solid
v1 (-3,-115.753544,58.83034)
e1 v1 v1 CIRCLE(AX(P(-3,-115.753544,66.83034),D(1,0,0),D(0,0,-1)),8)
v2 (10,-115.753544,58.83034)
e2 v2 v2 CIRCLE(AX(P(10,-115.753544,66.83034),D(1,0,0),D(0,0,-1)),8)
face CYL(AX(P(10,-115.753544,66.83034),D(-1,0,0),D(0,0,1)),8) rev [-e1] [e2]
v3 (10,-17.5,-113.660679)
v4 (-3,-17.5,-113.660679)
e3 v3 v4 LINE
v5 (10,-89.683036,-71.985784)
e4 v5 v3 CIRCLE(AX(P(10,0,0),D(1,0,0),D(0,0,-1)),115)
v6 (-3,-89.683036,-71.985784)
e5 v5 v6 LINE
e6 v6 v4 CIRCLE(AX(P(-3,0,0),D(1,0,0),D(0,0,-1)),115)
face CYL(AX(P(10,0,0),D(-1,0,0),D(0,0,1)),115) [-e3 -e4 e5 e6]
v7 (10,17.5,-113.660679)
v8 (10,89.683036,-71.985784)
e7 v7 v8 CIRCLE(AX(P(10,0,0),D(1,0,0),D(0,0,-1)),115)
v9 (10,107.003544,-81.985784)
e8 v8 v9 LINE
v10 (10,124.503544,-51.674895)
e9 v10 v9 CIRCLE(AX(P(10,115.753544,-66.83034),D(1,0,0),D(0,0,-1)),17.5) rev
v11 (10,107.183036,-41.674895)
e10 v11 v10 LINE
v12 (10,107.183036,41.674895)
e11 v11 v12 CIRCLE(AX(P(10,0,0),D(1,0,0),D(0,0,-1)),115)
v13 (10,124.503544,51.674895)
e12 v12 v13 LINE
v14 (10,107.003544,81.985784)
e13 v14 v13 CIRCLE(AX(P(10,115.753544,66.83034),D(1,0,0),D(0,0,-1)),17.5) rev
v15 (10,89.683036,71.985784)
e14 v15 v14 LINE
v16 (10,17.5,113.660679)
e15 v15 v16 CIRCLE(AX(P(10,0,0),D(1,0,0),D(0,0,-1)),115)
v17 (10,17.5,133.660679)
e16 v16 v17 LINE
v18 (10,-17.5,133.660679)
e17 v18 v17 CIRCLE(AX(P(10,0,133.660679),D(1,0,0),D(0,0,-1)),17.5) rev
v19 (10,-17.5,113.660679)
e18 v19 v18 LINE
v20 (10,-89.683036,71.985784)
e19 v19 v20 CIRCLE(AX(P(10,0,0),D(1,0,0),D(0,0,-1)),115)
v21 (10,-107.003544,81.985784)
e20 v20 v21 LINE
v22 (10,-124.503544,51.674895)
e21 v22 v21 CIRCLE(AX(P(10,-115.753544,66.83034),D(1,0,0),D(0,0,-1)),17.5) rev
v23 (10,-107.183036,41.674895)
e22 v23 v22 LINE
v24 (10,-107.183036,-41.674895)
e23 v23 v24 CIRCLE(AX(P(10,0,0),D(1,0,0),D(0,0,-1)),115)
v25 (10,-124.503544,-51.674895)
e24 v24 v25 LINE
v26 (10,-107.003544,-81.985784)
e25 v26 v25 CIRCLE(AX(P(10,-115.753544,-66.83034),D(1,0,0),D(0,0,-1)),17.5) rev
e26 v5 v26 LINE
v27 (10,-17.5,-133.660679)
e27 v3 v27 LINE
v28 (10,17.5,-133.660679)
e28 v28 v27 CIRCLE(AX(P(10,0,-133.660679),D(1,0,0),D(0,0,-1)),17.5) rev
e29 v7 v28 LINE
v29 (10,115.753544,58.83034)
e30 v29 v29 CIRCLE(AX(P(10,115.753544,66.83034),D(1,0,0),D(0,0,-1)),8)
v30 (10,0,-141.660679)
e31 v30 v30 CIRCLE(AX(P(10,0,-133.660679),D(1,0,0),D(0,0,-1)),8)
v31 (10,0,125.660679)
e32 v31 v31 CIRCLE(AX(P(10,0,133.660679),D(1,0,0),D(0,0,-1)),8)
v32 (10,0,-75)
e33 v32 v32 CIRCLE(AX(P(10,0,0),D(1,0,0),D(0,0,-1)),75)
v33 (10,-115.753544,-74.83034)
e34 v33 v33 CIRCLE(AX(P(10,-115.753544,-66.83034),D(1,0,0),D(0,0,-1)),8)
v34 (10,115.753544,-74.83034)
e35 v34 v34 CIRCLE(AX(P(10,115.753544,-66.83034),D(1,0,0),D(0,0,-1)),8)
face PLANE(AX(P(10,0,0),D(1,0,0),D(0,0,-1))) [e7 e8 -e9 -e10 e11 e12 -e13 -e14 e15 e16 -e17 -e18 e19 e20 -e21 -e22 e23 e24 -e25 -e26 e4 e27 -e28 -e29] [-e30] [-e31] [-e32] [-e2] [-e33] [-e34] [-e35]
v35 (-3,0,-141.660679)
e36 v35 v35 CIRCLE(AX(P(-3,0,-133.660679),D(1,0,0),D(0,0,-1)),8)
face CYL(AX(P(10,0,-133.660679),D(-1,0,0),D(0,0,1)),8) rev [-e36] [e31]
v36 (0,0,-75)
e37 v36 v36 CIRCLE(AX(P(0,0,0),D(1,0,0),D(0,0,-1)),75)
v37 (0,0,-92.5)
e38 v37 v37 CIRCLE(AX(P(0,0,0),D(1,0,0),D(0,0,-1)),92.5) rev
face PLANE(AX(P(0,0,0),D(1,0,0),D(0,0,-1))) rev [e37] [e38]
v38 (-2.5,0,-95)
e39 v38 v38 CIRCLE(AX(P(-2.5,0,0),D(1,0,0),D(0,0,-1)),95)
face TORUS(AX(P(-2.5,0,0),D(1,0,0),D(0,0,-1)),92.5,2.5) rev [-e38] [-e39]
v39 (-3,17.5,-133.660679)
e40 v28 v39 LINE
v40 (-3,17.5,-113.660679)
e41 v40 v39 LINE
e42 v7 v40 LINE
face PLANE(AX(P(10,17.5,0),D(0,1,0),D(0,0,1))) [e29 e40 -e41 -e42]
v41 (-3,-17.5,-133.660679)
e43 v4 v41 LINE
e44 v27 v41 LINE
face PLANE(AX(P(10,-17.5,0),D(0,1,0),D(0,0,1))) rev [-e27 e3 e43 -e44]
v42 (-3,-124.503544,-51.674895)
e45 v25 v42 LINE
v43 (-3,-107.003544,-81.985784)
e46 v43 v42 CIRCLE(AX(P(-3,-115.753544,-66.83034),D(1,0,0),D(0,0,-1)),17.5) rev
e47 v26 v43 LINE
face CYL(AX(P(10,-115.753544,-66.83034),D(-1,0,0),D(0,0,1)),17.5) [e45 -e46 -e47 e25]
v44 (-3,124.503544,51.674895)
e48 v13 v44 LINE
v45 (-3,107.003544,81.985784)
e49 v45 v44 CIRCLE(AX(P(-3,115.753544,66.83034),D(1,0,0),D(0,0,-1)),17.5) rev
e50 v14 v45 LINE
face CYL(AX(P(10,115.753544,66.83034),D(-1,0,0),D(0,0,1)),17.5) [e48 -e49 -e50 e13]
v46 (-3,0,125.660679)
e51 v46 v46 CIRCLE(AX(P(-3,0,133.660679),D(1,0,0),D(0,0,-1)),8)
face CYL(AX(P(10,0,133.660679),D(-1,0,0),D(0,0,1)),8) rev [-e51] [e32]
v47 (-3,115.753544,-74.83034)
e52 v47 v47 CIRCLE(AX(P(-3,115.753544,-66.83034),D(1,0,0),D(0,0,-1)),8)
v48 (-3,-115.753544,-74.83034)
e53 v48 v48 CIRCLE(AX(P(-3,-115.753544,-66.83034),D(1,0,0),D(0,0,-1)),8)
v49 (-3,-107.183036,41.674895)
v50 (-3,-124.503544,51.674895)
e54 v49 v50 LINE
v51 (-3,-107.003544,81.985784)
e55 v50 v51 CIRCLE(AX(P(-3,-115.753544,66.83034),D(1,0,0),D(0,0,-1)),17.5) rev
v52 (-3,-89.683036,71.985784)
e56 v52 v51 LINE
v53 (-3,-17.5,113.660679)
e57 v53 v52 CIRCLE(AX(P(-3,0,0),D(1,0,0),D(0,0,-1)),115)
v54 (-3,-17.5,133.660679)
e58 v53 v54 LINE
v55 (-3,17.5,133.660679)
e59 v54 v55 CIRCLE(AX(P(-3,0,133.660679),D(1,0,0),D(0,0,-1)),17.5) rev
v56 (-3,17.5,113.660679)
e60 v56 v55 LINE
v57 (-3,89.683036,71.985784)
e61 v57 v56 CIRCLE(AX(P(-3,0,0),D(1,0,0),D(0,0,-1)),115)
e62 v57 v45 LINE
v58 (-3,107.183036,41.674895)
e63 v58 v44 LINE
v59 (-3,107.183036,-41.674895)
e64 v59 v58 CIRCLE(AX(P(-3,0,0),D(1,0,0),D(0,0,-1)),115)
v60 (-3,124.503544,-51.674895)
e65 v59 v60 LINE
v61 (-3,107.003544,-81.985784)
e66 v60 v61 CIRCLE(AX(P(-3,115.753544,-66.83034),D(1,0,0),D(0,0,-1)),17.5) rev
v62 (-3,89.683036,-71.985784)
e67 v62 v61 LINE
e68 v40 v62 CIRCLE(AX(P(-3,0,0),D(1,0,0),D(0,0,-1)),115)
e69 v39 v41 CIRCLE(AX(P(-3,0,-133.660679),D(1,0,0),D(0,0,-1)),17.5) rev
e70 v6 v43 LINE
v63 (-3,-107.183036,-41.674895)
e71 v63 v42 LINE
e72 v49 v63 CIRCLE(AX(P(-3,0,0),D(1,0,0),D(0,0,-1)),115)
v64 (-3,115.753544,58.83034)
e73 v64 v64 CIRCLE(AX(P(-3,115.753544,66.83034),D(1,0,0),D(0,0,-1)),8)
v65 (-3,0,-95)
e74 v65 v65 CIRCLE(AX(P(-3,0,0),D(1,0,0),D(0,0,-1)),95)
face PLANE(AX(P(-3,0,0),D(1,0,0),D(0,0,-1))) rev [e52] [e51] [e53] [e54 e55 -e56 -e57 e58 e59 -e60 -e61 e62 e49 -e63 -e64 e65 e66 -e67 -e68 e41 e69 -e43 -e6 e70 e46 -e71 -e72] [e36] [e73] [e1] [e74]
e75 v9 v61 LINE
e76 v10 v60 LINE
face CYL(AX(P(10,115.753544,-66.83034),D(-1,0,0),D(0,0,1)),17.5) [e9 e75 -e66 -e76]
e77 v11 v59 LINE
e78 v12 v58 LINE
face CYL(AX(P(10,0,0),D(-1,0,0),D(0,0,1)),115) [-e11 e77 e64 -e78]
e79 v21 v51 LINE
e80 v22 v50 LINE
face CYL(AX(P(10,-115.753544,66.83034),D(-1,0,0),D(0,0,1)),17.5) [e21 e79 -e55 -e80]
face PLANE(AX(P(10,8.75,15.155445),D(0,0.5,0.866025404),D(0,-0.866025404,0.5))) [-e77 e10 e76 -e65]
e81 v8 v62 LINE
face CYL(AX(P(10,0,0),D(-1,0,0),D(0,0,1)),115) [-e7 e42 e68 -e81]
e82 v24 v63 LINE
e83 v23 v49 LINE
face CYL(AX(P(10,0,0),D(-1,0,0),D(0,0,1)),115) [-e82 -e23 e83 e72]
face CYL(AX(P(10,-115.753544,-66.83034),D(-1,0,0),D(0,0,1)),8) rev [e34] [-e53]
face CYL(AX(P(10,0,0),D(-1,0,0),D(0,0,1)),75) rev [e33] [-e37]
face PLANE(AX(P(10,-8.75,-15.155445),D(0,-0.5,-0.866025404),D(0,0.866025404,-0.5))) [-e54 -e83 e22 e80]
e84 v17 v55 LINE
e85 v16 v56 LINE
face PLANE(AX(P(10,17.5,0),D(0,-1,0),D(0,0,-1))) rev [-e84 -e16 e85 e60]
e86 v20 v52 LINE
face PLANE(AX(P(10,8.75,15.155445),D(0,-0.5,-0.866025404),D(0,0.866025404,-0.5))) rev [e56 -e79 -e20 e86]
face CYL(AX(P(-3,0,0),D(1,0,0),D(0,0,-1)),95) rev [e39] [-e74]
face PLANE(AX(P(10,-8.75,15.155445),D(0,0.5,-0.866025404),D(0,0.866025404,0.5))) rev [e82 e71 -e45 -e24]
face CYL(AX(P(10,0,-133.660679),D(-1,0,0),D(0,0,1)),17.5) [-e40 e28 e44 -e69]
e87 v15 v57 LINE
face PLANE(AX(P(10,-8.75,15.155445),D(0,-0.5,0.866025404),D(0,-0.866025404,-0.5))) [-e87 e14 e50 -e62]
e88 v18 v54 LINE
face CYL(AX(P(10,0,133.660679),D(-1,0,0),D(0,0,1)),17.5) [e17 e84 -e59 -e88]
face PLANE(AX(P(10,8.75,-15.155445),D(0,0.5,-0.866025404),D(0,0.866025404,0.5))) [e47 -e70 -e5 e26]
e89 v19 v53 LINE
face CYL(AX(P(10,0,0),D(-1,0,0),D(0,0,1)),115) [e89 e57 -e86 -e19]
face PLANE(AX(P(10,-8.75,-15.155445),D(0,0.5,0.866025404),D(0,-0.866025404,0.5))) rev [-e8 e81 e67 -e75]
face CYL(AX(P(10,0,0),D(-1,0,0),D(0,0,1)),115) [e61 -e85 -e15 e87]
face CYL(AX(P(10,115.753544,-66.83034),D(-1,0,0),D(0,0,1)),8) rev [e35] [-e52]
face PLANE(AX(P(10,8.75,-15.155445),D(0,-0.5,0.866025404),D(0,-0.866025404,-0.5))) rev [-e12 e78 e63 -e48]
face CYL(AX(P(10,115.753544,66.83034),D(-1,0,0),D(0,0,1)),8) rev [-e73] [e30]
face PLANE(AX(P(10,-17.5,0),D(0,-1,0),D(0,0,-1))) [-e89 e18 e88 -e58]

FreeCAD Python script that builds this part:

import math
import FreeCAD as App
import Part
import Sketcher
from FreeCAD import Vector
Q = App.Units.Quantity


def edges_at(feature, points):
    """Names of the edges that pass closest to the given points."""
    edges = feature.Shape.Edges
    near = lambda p: min(range(len(edges)), key=lambda i: edges[i].distToShape(Part.Vertex(*p))[0])
    return sorted({f"Edge{near(p) + 1}" for p in points})

doc = App.newDocument("Part")
body = doc.addObject("PartDesign::Body", "Body")

sketch1 = body.newObject("Sketcher::SketchObject", "Sketch")
sketch1.AttachmentSupport = (doc.getObject("YZ_Plane"), [""])
sketch1.MapMode = "FlatFace"
sketch1.addGeometry([
    Part.ArcOfCircle(Part.Circle(Vector(0, 0, 0), Vector(0, 0, 1), 115), math.radians(-81), math.radians(-39)),
    Part.LineSegment(Vector(90, -72, 0), Vector(107, -82, 0)),
    Part.ArcOfCircle(Part.Circle(Vector(116, -67, 0), Vector(0, 0, 1), 18), math.radians(-120), math.radians(60)),
    Part.LineSegment(Vector(125, -52, 0), Vector(107, -42, 0)),
    Part.ArcOfCircle(Part.Circle(Vector(0, 0, 0), Vector(0, 0, 1), 115), math.radians(-21), math.radians(21)),
    Part.LineSegment(Vector(107, 42, 0), Vector(125, 52, 0)),
    Part.ArcOfCircle(Part.Circle(Vector(116, 67, 0), Vector(0, 0, 1), 18), math.radians(-60), math.radians(120)),
    Part.LineSegment(Vector(107, 82, 0), Vector(90, 72, 0)),
    Part.ArcOfCircle(Part.Circle(Vector(0, 0, 0), Vector(0, 0, 1), 115), math.radians(39), math.radians(81)),
    Part.LineSegment(Vector(18, 114, 0), Vector(18, 134, 0)),
    Part.ArcOfCircle(Part.Circle(Vector(0, 134, 0), Vector(0, 0, 1), 18), math.radians(0), math.radians(180)),
    Part.LineSegment(Vector(-18, 134, 0), Vector(-18, 114, 0)),
    Part.ArcOfCircle(Part.Circle(Vector(0, 0, 0), Vector(0, 0, 1), 115), math.radians(99), math.radians(141)),
    Part.LineSegment(Vector(-90, 72, 0), Vector(-107, 82, 0)),
    Part.ArcOfCircle(Part.Circle(Vector(-116, 67, 0), Vector(0, 0, 1), 18), math.radians(60), math.radians(240)),
    Part.LineSegment(Vector(-125, 52, 0), Vector(-107, 42, 0)),
    Part.ArcOfCircle(Part.Circle(Vector(0, 0, 0), Vector(0, 0, 1), 115), math.radians(159), math.radians(201)),
    Part.LineSegment(Vector(-107, -42, 0), Vector(-125, -52, 0)),
    Part.ArcOfCircle(Part.Circle(Vector(-116, -67, 0), Vector(0, 0, 1), 18), math.radians(120), math.radians(300)),
    Part.LineSegment(Vector(-107, -82, 0), Vector(-90, -72, 0)),
    Part.ArcOfCircle(Part.Circle(Vector(0, 0, 0), Vector(0, 0, 1), 115), math.radians(-141), math.radians(-99)),
    Part.LineSegment(Vector(-18, -114, 0), Vector(-18, -134, 0)),
    Part.ArcOfCircle(Part.Circle(Vector(0, -134, 0), Vector(0, 0, 1), 18), math.radians(180), math.radians(360)),
    Part.LineSegment(Vector(18, -134, 0), Vector(18, -114, 0)),
    Part.Circle(Vector(0, -134, 0), Vector(0, 0, 1), 8),
    Part.Circle(Vector(116, -67, 0), Vector(0, 0, 1), 8),
    Part.Circle(Vector(116, 67, 0), Vector(0, 0, 1), 8),
    Part.Circle(Vector(0, 134, 0), Vector(0, 0, 1), 8),
    Part.Circle(Vector(-116, 67, 0), Vector(0, 0, 1), 8),
    Part.Circle(Vector(-116, -67, 0), Vector(0, 0, 1), 8),
    Part.Circle(Vector(0, 0, 0), Vector(0, 0, 1), 75),
], False)
sketch1.addConstraint([
    Sketcher.Constraint("Coincident", 0, 2, 1, 1),
    Sketcher.Constraint("Tangent", 1, 2, 2, 1),
    Sketcher.Constraint("Tangent", 2, 2, 3, 1),
    Sketcher.Constraint("Coincident", 3, 2, 4, 1),
    Sketcher.Constraint("Coincident", 4, 2, 5, 1),
    Sketcher.Constraint("Tangent", 5, 2, 6, 1),
    Sketcher.Constraint("Tangent", 6, 2, 7, 1),
    Sketcher.Constraint("Coincident", 7, 2, 8, 1),
    Sketcher.Constraint("Coincident", 8, 2, 9, 1),
    Sketcher.Constraint("Tangent", 9, 2, 10, 1),
    Sketcher.Constraint("Tangent", 10, 2, 11, 1),
    Sketcher.Constraint("Coincident", 11, 2, 12, 1),
    Sketcher.Constraint("Coincident", 12, 2, 13, 1),
    Sketcher.Constraint("Tangent", 13, 2, 14, 1),
    Sketcher.Constraint("Tangent", 14, 2, 15, 1),
    Sketcher.Constraint("Coincident", 15, 2, 16, 1),
    Sketcher.Constraint("Coincident", 16, 2, 17, 1),
    Sketcher.Constraint("Tangent", 17, 2, 18, 1),
    Sketcher.Constraint("Tangent", 18, 2, 19, 1),
    Sketcher.Constraint("Coincident", 19, 2, 20, 1),
    Sketcher.Constraint("Coincident", 20, 2, 21, 1),
    Sketcher.Constraint("Tangent", 21, 2, 22, 1),
    Sketcher.Constraint("Tangent", 22, 2, 23, 1),
    Sketcher.Constraint("Coincident", 23, 2, 0, 1),
    Sketcher.Constraint("Vertical", 9),
    Sketcher.Constraint("Vertical", 11),
    Sketcher.Constraint("Vertical", 21),
    Sketcher.Constraint("Vertical", 23),
    Sketcher.Constraint("Coincident", 0, 3, -1, 1),
    Sketcher.Constraint("Coincident", 4, 3, -1, 1),
    Sketcher.Constraint("Coincident", 8, 3, -1, 1),
    Sketcher.Constraint("Coincident", 12, 3, -1, 1),
    Sketcher.Constraint("Coincident", 16, 3, -1, 1),
    Sketcher.Constraint("Coincident", 20, 3, -1, 1),
    Sketcher.Constraint("Coincident", 30, 3, -1, 1),
    Sketcher.Constraint("Coincident", 24, 3, 22, 3),
    Sketcher.Constraint("Coincident", 25, 3, 2, 3),
    Sketcher.Constraint("Coincident", 26, 3, 6, 3),
    Sketcher.Constraint("Coincident", 27, 3, 10, 3),
    Sketcher.Constraint("Coincident", 28, 3, 14, 3),
    Sketcher.Constraint("Coincident", 29, 3, 18, 3),
    Sketcher.Constraint("Equal", 0, 4),
    Sketcher.Constraint("Equal", 2, 6),
    Sketcher.Constraint("Equal", 4, 8),
    Sketcher.Constraint("Equal", 6, 10),
    Sketcher.Constraint("Equal", 8, 12),
    Sketcher.Constraint("Equal", 10, 14),
    Sketcher.Constraint("Equal", 12, 16),
    Sketcher.Constraint("Equal", 14, 18),
    Sketcher.Constraint("Equal", 16, 20),
    Sketcher.Constraint("Equal", 18, 22),
    Sketcher.Constraint("Equal", 24, 25),
    Sketcher.Constraint("Equal", 25, 26),
    Sketcher.Constraint("Equal", 26, 27),
    Sketcher.Constraint("Equal", 27, 28),
    Sketcher.Constraint("Equal", 28, 29),
    Sketcher.Constraint("Symmetric", 2, 3, 14, 3, -1, 1),
    Sketcher.Constraint("Symmetric", 6, 3, 18, 3, -1, 1),
    Sketcher.Constraint("Symmetric", 10, 3, 22, 3, -1, 1),
    Sketcher.Constraint("Symmetric", 6, 3, 14, 3, -2),
    Sketcher.Constraint("PointOnObject", 10, 3, -2),
    Sketcher.Constraint("Parallel", 1, 3),
    Sketcher.Constraint("Parallel", 5, 7),
    Sketcher.Constraint("Parallel", 3, 13),
    Sketcher.Constraint("Parallel", 13, 15),
    Sketcher.Constraint("Parallel", 7, 17),
    Sketcher.Constraint("Parallel", 17, 19),
    Sketcher.Constraint("Horizontal", 7, 2, 12, 2),
    Sketcher.Constraint("Equal", 1, 3),
    Sketcher.Constraint("Diameter", 24, Q("16 mm")),
    Sketcher.Constraint("Diameter", 30, Q("150 mm")),
    Sketcher.Constraint("Radius", 0, Q("115 mm")),
    Sketcher.Constraint("Radius", 2, Q("17.5 mm")),
    Sketcher.Constraint("DistanceY", 9, 1, 9, 2, Q("20 mm")),
    Sketcher.Constraint("Angle", 1, Q("-30 deg")),
    Sketcher.Constraint("Distance", 1, Q("20 mm")),
])
pad1 = body.newObject("PartDesign::Pad", "Pad")
pad1.Profile = sketch1
pad1.Length = 10

sketch2 = body.newObject("Sketcher::SketchObject", "Sketch001")
sketch2.AttachmentSupport = (doc.getObject("YZ_Plane"), [""])
sketch2.MapMode = "FlatFace"
sketch2.AttachmentOffset = App.Placement(Vector(0, 0, -3), App.Rotation())
sketch2.addGeometry([
    Part.ArcOfCircle(Part.Circle(Vector(0, 0, 0), Vector(0, 0, 1), 115), math.radians(-81), math.radians(-39)),
    Part.LineSegment(Vector(90, -72, 0), Vector(107, -82, 0)),
    Part.ArcOfCircle(Part.Circle(Vector(116, -67, 0), Vector(0, 0, 1), 18), math.radians(-120), math.radians(60)),
    Part.LineSegment(Vector(125, -52, 0), Vector(107, -42, 0)),
    Part.ArcOfCircle(Part.Circle(Vector(0, 0, 0), Vector(0, 0, 1), 115), math.radians(-21), math.radians(21)),
    Part.LineSegment(Vector(107, 42, 0), Vector(125, 52, 0)),
    Part.ArcOfCircle(Part.Circle(Vector(116, 67, 0), Vector(0, 0, 1), 18), math.radians(-60), math.radians(120)),
    Part.LineSegment(Vector(107, 82, 0), Vector(90, 72, 0)),
    Part.ArcOfCircle(Part.Circle(Vector(0, 0, 0), Vector(0, 0, 1), 115), math.radians(39), math.radians(81)),
    Part.LineSegment(Vector(18, 114, 0), Vector(18, 134, 0)),
    Part.ArcOfCircle(Part.Circle(Vector(0, 134, 0), Vector(0, 0, 1), 18), math.radians(0), math.radians(180)),
    Part.LineSegment(Vector(-18, 134, 0), Vector(-18, 114, 0)),
    Part.ArcOfCircle(Part.Circle(Vector(0, 0, 0), Vector(0, 0, 1), 115), math.radians(99), math.radians(141)),
    Part.LineSegment(Vector(-90, 72, 0), Vector(-107, 82, 0)),
    Part.ArcOfCircle(Part.Circle(Vector(-116, 67, 0), Vector(0, 0, 1), 18), math.radians(60), math.radians(240)),
    Part.LineSegment(Vector(-125, 52, 0), Vector(-107, 42, 0)),
    Part.ArcOfCircle(Part.Circle(Vector(0, 0, 0), Vector(0, 0, 1), 115), math.radians(159), math.radians(201)),
    Part.LineSegment(Vector(-107, -42, 0), Vector(-125, -52, 0)),
    Part.ArcOfCircle(Part.Circle(Vector(-116, -67, 0), Vector(0, 0, 1), 18), math.radians(120), math.radians(300)),
    Part.LineSegment(Vector(-107, -82, 0), Vector(-90, -72, 0)),
    Part.ArcOfCircle(Part.Circle(Vector(0, 0, 0), Vector(0, 0, 1), 115), math.radians(-141), math.radians(-99)),
    Part.LineSegment(Vector(-18, -114, 0), Vector(-18, -134, 0)),
    Part.ArcOfCircle(Part.Circle(Vector(0, -134, 0), Vector(0, 0, 1), 18), math.radians(180), math.radians(360)),
    Part.LineSegment(Vector(18, -134, 0), Vector(18, -114, 0)),
    Part.Circle(Vector(0, 0, 0), Vector(0, 0, 1), 95),
    Part.Circle(Vector(0, -134, 0), Vector(0, 0, 1), 8),
    Part.Circle(Vector(116, -67, 0), Vector(0, 0, 1), 8),
    Part.Circle(Vector(116, 67, 0), Vector(0, 0, 1), 8),
    Part.Circle(Vector(0, 134, 0), Vector(0, 0, 1), 8),
    Part.Circle(Vector(-116, 67, 0), Vector(0, 0, 1), 8),
    Part.Circle(Vector(-116, -67, 0), Vector(0, 0, 1), 8),
], False)
sketch2.addConstraint([
    Sketcher.Constraint("Coincident", 0, 2, 1, 1),
    Sketcher.Constraint("Tangent", 1, 2, 2, 1),
    Sketcher.Constraint("Tangent", 2, 2, 3, 1),
    Sketcher.Constraint("Coincident", 3, 2, 4, 1),
    Sketcher.Constraint("Coincident", 4, 2, 5, 1),
    Sketcher.Constraint("Tangent", 5, 2, 6, 1),
    Sketcher.Constraint("Tangent", 6, 2, 7, 1),
    Sketcher.Constraint("Coincident", 7, 2, 8, 1),
    Sketcher.Constraint("Coincident", 8, 2, 9, 1),
    Sketcher.Constraint("Tangent", 9, 2, 10, 1),
    Sketcher.Constraint("Tangent", 10, 2, 11, 1),
    Sketcher.Constraint("Coincident", 11, 2, 12, 1),
    Sketcher.Constraint("Coincident", 12, 2, 13, 1),
    Sketcher.Constraint("Tangent", 13, 2, 14, 1),
    Sketcher.Constraint("Tangent", 14, 2, 15, 1),
    Sketcher.Constraint("Coincident", 15, 2, 16, 1),
    Sketcher.Constraint("Coincident", 16, 2, 17, 1),
    Sketcher.Constraint("Tangent", 17, 2, 18, 1),
    Sketcher.Constraint("Tangent", 18, 2, 19, 1),
    Sketcher.Constraint("Coincident", 19, 2, 20, 1),
    Sketcher.Constraint("Coincident", 20, 2, 21, 1),
    Sketcher.Constraint("Tangent", 21, 2, 22, 1),
    Sketcher.Constraint("Tangent", 22, 2, 23, 1),
    Sketcher.Constraint("Coincident", 23, 2, 0, 1),
    Sketcher.Constraint("Vertical", 9),
    Sketcher.Constraint("Vertical", 11),
    Sketcher.Constraint("Vertical", 21),
    Sketcher.Constraint("Vertical", 23),
    Sketcher.Constraint("Coincident", 0, 3, -1, 1),
    Sketcher.Constraint("Coincident", 4, 3, -1, 1),
    Sketcher.Constraint("Coincident", 8, 3, -1, 1),
    Sketcher.Constraint("Coincident", 12, 3, -1, 1),
    Sketcher.Constraint("Coincident", 16, 3, -1, 1),
    Sketcher.Constraint("Coincident", 20, 3, -1, 1),
    Sketcher.Constraint("Coincident", 24, 3, -1, 1),
    Sketcher.Constraint("Coincident", 25, 3, 22, 3),
    Sketcher.Constraint("Coincident", 26, 3, 2, 3),
    Sketcher.Constraint("Coincident", 27, 3, 6, 3),
    Sketcher.Constraint("Coincident", 28, 3, 10, 3),
    Sketcher.Constraint("Coincident", 29, 3, 14, 3),
    Sketcher.Constraint("Coincident", 30, 3, 18, 3),
    Sketcher.Constraint("Equal", 0, 4),
    Sketcher.Constraint("Equal", 2, 6),
    Sketcher.Constraint("Equal", 4, 8),
    Sketcher.Constraint("Equal", 6, 10),
    Sketcher.Constraint("Equal", 8, 12),
    Sketcher.Constraint("Equal", 10, 14),
    Sketcher.Constraint("Equal", 12, 16),
    Sketcher.Constraint("Equal", 14, 18),
    Sketcher.Constraint("Equal", 16, 20),
    Sketcher.Constraint("Equal", 18, 22),
    Sketcher.Constraint("Equal", 25, 26),
    Sketcher.Constraint("Equal", 26, 27),
    Sketcher.Constraint("Equal", 27, 28),
    Sketcher.Constraint("Equal", 28, 29),
    Sketcher.Constraint("Equal", 29, 30),
    Sketcher.Constraint("Symmetric", 2, 3, 14, 3, -1, 1),
    Sketcher.Constraint("Symmetric", 6, 3, 18, 3, -1, 1),
    Sketcher.Constraint("Symmetric", 10, 3, 22, 3, -1, 1),
    Sketcher.Constraint("Symmetric", 6, 3, 14, 3, -2),
    Sketcher.Constraint("PointOnObject", 10, 3, -2),
    Sketcher.Constraint("Parallel", 1, 3),
    Sketcher.Constraint("Parallel", 5, 7),
    Sketcher.Constraint("Parallel", 3, 13),
    Sketcher.Constraint("Parallel", 13, 15),
    Sketcher.Constraint("Parallel", 7, 17),
    Sketcher.Constraint("Parallel", 17, 19),
    Sketcher.Constraint("Horizontal", 7, 2, 12, 2),
    Sketcher.Constraint("Equal", 1, 3),
    Sketcher.Constraint("Diameter", 24, Q("190 mm")),
    Sketcher.Constraint("Diameter", 25, Q("16 mm")),
    Sketcher.Constraint("Radius", 0, Q("115 mm")),
    Sketcher.Constraint("Radius", 2, Q("17.5 mm")),
    Sketcher.Constraint("DistanceY", 9, 1, 9, 2, Q("20 mm")),
    Sketcher.Constraint("Angle", 1, Q("-30 deg")),
    Sketcher.Constraint("Distance", 1, Q("20 mm")),
])
pad2 = body.newObject("PartDesign::Pad", "Pad001")
pad2.Profile = sketch2
pad2.Length = 3
doc.recompute()

fillet = body.newObject("PartDesign::Fillet", "Fillet")
fillet.Base = (pad2, edges_at(pad2, [(0, 0, 95)]))
fillet.Radius = 2.5

doc.recompute()
